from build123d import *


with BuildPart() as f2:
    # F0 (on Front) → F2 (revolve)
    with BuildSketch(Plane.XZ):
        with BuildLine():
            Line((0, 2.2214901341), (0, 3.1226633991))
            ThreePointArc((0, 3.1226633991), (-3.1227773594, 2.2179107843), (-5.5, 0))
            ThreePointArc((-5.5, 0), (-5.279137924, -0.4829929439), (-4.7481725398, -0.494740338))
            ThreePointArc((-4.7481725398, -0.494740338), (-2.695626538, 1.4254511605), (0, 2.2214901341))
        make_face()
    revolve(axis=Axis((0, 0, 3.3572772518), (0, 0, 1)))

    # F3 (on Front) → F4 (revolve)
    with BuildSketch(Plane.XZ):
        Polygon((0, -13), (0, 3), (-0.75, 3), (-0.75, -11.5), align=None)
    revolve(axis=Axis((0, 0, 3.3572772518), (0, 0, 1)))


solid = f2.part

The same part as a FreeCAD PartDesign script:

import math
import FreeCAD as App
import Part
import Sketcher
Q = App.Units.Quantity


def add_polygon(sketch, points):
    """Adds a closed chain of lines whose ends are joined by coincident constraints."""
    first, n = sketch.GeometryCount, len(points)
    for a, b in zip(points, points[1:] + points[:1]):
        sketch.addGeometry(Part.LineSegment(App.Vector(*a, 0), App.Vector(*b, 0)), False)
    for i in range(n):
        sketch.addConstraint(Sketcher.Constraint("Coincident", first + i, 2, first + (i + 1) % n, 1))

doc = App.newDocument("Part")
params = doc.addObject("Spreadsheet::Sheet", "Params")
for row, (alias, value) in enumerate([
    ("sketch1_radius", "7 mm"),
    ("sketch1_radius2", "0.5 mm"),
    ("sketch1_radius3", "6.1 mm"),
    ("revolution_angle", "360 deg"),
    ("sketch2_height", "16 mm"),
    ("sketch2_height2", "14.5 mm"),
    ("sketch2_width", "0.75 mm"),
    ("revolution2_angle", "360 deg"),
], start=1):
    params.set(f"A{row}", alias)
    params.set(f"B{row}", "=" + value)
    params.setAlias(f"B{row}", alias)

body = doc.addObject("PartDesign::Body", "Body")

# Sketch on XZ plane
sketch1 = body.newObject("Sketcher::SketchObject", "Sketch")
sketch1.AttachmentSupport = (doc.getObject("XZ_Plane"), [""])
sketch1.MapMode = "FlatFace"
sketch1.addGeometry([
    Part.LineSegment(App.Vector(0, 2.2, 0), App.Vector(0, 3.1, 0)),
    Part.ArcOfCircle(Part.Circle(App.Vector(0.3, -3.9, 0), App.Vector(0, 0, 1), 7), math.radians(93), math.radians(146)),
    Part.ArcOfCircle(Part.Circle(App.Vector(-5, -0.1, 0), App.Vector(0, 0, 1), 0.5), math.radians(172), math.radians(301)),
    Part.ArcOfCircle(Part.Circle(App.Vector(0.3, -3.9, 0), App.Vector(0, 0, 1), 6.1), math.radians(93), math.radians(146)),
], False)
sketch1.addConstraint([
    Sketcher.Constraint("Coincident", 0, 2, 1, 1),
    Sketcher.Constraint("Coincident", 1, 2, 2, 1),
    Sketcher.Constraint("Coincident", 2, 2, 3, 2),
    Sketcher.Constraint("Coincident", 3, 1, 0, 1),
    Sketcher.Constraint("Vertical", 0),
    Sketcher.Constraint("Coincident", 3, 3, 1, 3),
    Sketcher.Constraint("PointOnObject", 0, 2, -2),
    Sketcher.Constraint("PointOnObject", 1, 2, -1),
    Sketcher.Constraint("Radius", 1, Q("7 mm")),
    Sketcher.Constraint("Radius", 2, Q("0.5 mm")),
    Sketcher.Constraint("Radius", 3, Q("6.1 mm")),
    Sketcher.Constraint("DistanceX", 1, 2, -1, 1, Q("5.5 mm")),
    Sketcher.Constraint("DistanceY", 2, 2, -1, 1, Q("0.49474 mm")),
    Sketcher.Constraint("DistanceY", -1, 1, 3, 1, Q("2.22149 mm")),
])
sketch1.setExpression("Constraints[8]", "Params.sketch1_radius")
sketch1.setExpression("Constraints[9]", "Params.sketch1_radius2")
sketch1.setExpression("Constraints[10]", "Params.sketch1_radius3")
revolution = body.newObject("PartDesign::Revolution", "Revolution")
revolution.Profile = sketch1
revolution.ReferenceAxis = (sketch1, ["V_Axis"])
revolution.setExpression("Angle", "Params.revolution_angle")

# Sketch on XZ plane
sketch2 = body.newObject("Sketcher::SketchObject", "Sketch001")
sketch2.AttachmentSupport = (doc.getObject("XZ_Plane"), [""])
sketch2.MapMode = "FlatFace"
add_polygon(sketch2, [(0, -13), (0, 3), (-0.8, 3), (-0.8, -11.5)])  # lines 0-3
sketch2.addConstraint([
    Sketcher.Constraint("Vertical", 0),
    Sketcher.Constraint("Horizontal", 1),
    Sketcher.Constraint("Vertical", 2),
    Sketcher.Constraint("PointOnObject", 0, 2, -2),
    Sketcher.Constraint("DistanceY", 0, 1, 0, 2, Q("16 mm")),
    Sketcher.Constraint("DistanceY", 2, 2, 2, 1, Q("14.5 mm")),
    Sketcher.Constraint("DistanceY", -1, 1, 0, 2, Q("3 mm")),
    Sketcher.Constraint("DistanceX", 1, 2, 1, 1, Q("0.75 mm")),
])
sketch2.setExpression("Constraints[8]", "Params.sketch2_height")
sketch2.setExpression("Constraints[9]", "Params.sketch2_height2")
sketch2.setExpression("Constraints[11]", "Params.sketch2_width")
revolution2 = body.newObject("PartDesign::Revolution", "Revolution001")
revolution2.Profile = sketch2
revolution2.ReferenceAxis = (sketch2, ["V_Axis"])
revolution2.setExpression("Angle", "Params.revolution2_angle")

doc.recompute()
